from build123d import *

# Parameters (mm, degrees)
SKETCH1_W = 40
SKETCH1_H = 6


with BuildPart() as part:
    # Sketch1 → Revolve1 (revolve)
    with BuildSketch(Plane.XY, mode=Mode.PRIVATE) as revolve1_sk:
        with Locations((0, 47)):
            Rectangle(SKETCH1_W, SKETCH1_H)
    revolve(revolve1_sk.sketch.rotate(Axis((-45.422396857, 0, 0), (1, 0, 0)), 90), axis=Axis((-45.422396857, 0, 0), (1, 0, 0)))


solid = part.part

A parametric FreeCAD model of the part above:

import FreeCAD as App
import Part
import Sketcher
from FreeCAD import Vector
Q = App.Units.Quantity

doc = App.newDocument("Part")
body = doc.addObject("PartDesign::Body", "Body")

sketch1 = doc.addObject("Sketcher::SketchObject", "Sketch")
body.addObject(sketch1)
sketch1.AttachmentSupport = (doc.XY_Plane, [""])
sketch1.MapMode = "FlatFace"
sketch1.addGeometry([
    Part.LineSegment(Vector(-20, 50, 0), Vector(-20, 44, 0)),
    Part.LineSegment(Vector(-20, 44, 0), Vector(20, 44, 0)),
    Part.LineSegment(Vector(20, 44, 0), Vector(20, 50, 0)),
    Part.LineSegment(Vector(20, 50, 0), Vector(-20, 50, 0)),
], False)
sketch1.addConstraint([
    Sketcher.Constraint("Coincident", 0, 2, 1, 1),
    Sketcher.Constraint("Coincident", 1, 2, 2, 1),
    Sketcher.Constraint("Coincident", 2, 2, 3, 1),
    Sketcher.Constraint("Coincident", 3, 2, 0, 1),
    Sketcher.Constraint("Vertical", 0),
    Sketcher.Constraint("Horizontal", 1),
    Sketcher.Constraint("Vertical", 2),
    Sketcher.Constraint("Horizontal", 3),
    Sketcher.Constraint("DistanceX", 1, 1, 1, 2, Q("40 mm")),
    Sketcher.Constraint("DistanceY", 0, 2, 0, 1, Q("6 mm")),
    Sketcher.Constraint("DistanceX", 0, 2, -1, 1, Q("20 mm")),
    Sketcher.Constraint("DistanceY", -1, 1, 0, 2, Q("44 mm")),
])
revolution = doc.addObject("PartDesign::Revolution", "Revolution")
body.addObject(revolution)
revolution.Profile = sketch1
revolution.ReferenceAxis = (sketch1, ["H_Axis"])
revolution.Angle = 360

doc.recompute()
